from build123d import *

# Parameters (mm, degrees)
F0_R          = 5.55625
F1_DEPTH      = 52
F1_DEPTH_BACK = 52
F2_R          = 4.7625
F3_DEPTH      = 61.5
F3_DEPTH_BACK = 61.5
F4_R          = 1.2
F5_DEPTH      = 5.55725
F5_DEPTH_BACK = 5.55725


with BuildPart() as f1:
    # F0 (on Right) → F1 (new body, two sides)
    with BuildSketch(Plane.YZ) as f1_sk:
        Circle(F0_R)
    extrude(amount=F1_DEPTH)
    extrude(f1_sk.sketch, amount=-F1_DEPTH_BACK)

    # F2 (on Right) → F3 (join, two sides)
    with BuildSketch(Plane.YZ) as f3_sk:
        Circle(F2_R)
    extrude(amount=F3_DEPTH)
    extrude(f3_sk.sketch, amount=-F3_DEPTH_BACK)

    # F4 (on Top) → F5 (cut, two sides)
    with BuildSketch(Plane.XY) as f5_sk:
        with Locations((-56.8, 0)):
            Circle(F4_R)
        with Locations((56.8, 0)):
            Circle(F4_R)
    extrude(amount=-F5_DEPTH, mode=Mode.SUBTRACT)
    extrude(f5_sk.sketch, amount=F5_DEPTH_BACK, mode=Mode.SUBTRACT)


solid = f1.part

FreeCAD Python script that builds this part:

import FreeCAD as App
import Part
import Sketcher
from FreeCAD import Vector
Q = App.Units.Quantity

doc = App.newDocument("Part")
body = doc.addObject("PartDesign::Body", "Body")

sketch1 = doc.addObject("Sketcher::SketchObject", "Sketch")
body.addObject(sketch1)
sketch1.AttachmentSupport = (doc.YZ_Plane, [""])
sketch1.MapMode = "FlatFace"
sketch1.addGeometry(Part.Circle(Vector(0, 0, 0), Vector(0, 0, 1), 6), False)
sketch1.addConstraint([
    Sketcher.Constraint("Coincident", 0, 3, -1, 1),
    Sketcher.Constraint("Diameter", 0, Q("11.1125 mm")),
])
pad1 = doc.addObject("PartDesign::Pad", "Pad")
body.addObject(pad1)
pad1.Profile = sketch1
pad1.Type = "TwoLengths"
pad1.Length = 52
pad1.Length2 = 52

sketch2 = doc.addObject("Sketcher::SketchObject", "Sketch001")
body.addObject(sketch2)
sketch2.AttachmentSupport = (doc.YZ_Plane, [""])
sketch2.MapMode = "FlatFace"
sketch2.addGeometry(Part.Circle(Vector(0, 0, 0), Vector(0, 0, 1), 4.8), False)
sketch2.addConstraint([
    Sketcher.Constraint("Coincident", 0, 3, -1, 1),
    Sketcher.Constraint("Diameter", 0, Q("9.525 mm")),
])
pad2 = doc.addObject("PartDesign::Pad", "Pad001")
body.addObject(pad2)
pad2.Profile = sketch2
pad2.Type = "TwoLengths"
pad2.Length = 61.5
pad2.Length2 = 61.5

sketch3 = doc.addObject("Sketcher::SketchObject", "Sketch002")
body.addObject(sketch3)
sketch3.AttachmentSupport = (doc.XY_Plane, [""])
sketch3.MapMode = "FlatFace"
sketch3.addGeometry([
    Part.Circle(Vector(-56.8, 0, 0), Vector(0, 0, 1), 1.2),
    Part.Circle(Vector(56.8, 0, 0), Vector(0, 0, 1), 1.2),
], False)
sketch3.addConstraint([
    Sketcher.Constraint("Equal", 0, 1),
    Sketcher.Constraint("Symmetric", 0, 3, 1, 3, -1, 1),
    Sketcher.Constraint("PointOnObject", 0, 3, -1),
    Sketcher.Constraint("Diameter", 0, Q("2.4 mm")),
    Sketcher.Constraint("DistanceX", 0, 3, -1, 1, Q("56.8 mm")),
])
pocket1 = doc.addObject("PartDesign::Pocket", "Pocket")
body.addObject(pocket1)
pocket1.Profile = sketch3
pocket1.Type = "ThroughAll"
pocket1.Midplane = True

doc.recompute()
